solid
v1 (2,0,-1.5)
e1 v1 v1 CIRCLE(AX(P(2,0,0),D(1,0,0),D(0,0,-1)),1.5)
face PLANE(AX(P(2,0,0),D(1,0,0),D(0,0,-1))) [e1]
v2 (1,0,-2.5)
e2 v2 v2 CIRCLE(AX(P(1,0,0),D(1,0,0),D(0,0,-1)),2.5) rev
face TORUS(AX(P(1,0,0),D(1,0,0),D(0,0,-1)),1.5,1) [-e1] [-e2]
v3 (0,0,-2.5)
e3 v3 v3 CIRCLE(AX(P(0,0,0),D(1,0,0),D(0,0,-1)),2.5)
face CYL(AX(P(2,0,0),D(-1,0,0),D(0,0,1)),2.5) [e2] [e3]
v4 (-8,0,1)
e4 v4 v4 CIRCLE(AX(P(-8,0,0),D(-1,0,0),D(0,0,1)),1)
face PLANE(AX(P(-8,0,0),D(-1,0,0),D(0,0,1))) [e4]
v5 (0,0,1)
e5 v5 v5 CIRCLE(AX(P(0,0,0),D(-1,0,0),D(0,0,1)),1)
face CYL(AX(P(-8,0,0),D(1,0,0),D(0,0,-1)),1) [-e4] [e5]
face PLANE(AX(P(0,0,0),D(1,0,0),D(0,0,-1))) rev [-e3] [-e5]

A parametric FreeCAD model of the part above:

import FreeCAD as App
import Part
import Sketcher
from FreeCAD import Vector


def edges_at(feature, points):
    """Names of the edges that pass closest to the given points."""
    edges = feature.Shape.Edges
    near = lambda p: min(range(len(edges)), key=lambda i: edges[i].distToShape(Part.Vertex(*p))[0])
    return sorted({f"Edge{near(p) + 1}" for p in points})

doc = App.newDocument("Part")
body = doc.addObject("PartDesign::Body", "Body")

sketch1 = body.newObject("Sketcher::SketchObject", "Sketch")
sketch1.AttachmentSupport = (doc.getObject("YZ_Plane"), [""])
sketch1.MapMode = "FlatFace"
sketch1.addGeometry(Part.Circle(Vector(0, 0, 0), Vector(0, 0, 1), 2.5), False)
sketch1.addConstraint([
    Sketcher.Constraint("Coincident", 0, 3, -1, 1),
    Sketcher.Constraint("Diameter", 0, 5.0),
])
pad1 = body.newObject("PartDesign::Pad", "Pad")
pad1.Profile = sketch1
pad1.Length = 2

sketch2 = body.newObject("Sketcher::SketchObject", "Sketch001")
sketch2.AttachmentSupport = (doc.getObject("YZ_Plane"), [""])
sketch2.MapMode = "FlatFace"
sketch2.addGeometry(Part.Circle(Vector(0, 0, 0), Vector(0, 0, 1), 1), False)
sketch2.addConstraint([
    Sketcher.Constraint("Coincident", 0, 3, -1, 1),
    Sketcher.Constraint("Diameter", 0, 2.0),
])
pad2 = body.newObject("PartDesign::Pad", "Pad001")
pad2.Profile = sketch2
pad2.Length = 8
pad2.Reversed = True
doc.recompute()

fillet = body.newObject("PartDesign::Fillet", "Fillet")
fillet.Base = (pad2, edges_at(pad2, [(2, 0, 2.5)]))
fillet.Radius = 1

doc.recompute()
